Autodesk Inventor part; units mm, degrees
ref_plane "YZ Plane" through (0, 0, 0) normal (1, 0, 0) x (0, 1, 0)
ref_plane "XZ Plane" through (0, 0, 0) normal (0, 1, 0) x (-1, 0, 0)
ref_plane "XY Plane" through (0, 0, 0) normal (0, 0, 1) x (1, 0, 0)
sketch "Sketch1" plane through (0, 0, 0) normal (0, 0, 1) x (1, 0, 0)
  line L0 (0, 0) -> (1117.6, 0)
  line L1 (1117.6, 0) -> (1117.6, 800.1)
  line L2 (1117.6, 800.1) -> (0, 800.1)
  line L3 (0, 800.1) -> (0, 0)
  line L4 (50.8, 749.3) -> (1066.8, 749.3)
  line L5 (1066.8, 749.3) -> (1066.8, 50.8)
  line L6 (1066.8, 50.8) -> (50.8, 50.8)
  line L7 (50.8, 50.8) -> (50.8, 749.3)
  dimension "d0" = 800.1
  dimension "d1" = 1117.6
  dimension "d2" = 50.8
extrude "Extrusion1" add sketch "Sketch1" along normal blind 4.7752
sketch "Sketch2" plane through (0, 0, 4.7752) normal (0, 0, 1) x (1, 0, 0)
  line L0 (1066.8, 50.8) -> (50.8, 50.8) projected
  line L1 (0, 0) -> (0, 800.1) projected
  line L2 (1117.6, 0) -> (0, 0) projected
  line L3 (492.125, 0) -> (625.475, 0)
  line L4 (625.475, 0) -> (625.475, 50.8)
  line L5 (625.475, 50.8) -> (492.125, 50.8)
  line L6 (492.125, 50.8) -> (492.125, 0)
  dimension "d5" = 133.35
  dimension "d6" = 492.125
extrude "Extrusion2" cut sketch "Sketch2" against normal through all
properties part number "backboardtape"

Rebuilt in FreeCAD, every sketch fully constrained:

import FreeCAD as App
import Part
import Sketcher

V = App.Vector
Q = App.Units.Quantity

doc = App.newDocument("Part")
body = doc.addObject("PartDesign::Body", "Body")

# Sketch on XY plane
sketch1 = body.newObject("Sketcher::SketchObject", "Sketch")
sketch1.AttachmentSupport = (doc.getObject("XY_Plane"), [""])
sketch1.MapMode = "FlatFace"
sketch1.addGeometry([
    Part.LineSegment(V(0, 800, 0), V(0, 0, 0)),  # 0
    Part.LineSegment(V(0, 0, 0), V(1118, 0, 0)),  # 1
    Part.LineSegment(V(1118, 0, 0), V(1118, 800, 0)),  # 2
    Part.LineSegment(V(1118, 800, 0), V(0, 800, 0)),  # 3
    Part.LineSegment(V(51, 51, 0), V(51, 749, 0)),  # 4
    Part.LineSegment(V(51, 749, 0), V(1067, 749, 0)),  # 5
    Part.LineSegment(V(1067, 749, 0), V(1067, 51, 0)),  # 6
    Part.LineSegment(V(1067, 51, 0), V(51, 51, 0)),  # 7
], False)
sketch1.addConstraint([
    Sketcher.Constraint("Coincident", 0, 2, 1, 1),
    Sketcher.Constraint("Coincident", 1, 2, 2, 1),
    Sketcher.Constraint("Coincident", 2, 2, 3, 1),
    Sketcher.Constraint("Coincident", 3, 2, 0, 1),
    Sketcher.Constraint("Coincident", 4, 2, 5, 1),
    Sketcher.Constraint("Coincident", 5, 2, 6, 1),
    Sketcher.Constraint("Coincident", 6, 2, 7, 1),
    Sketcher.Constraint("Coincident", 7, 2, 4, 1),
    Sketcher.Constraint("Vertical", 0),
    Sketcher.Constraint("Horizontal", 1),
    Sketcher.Constraint("Vertical", 2),
    Sketcher.Constraint("Horizontal", 3),
    Sketcher.Constraint("Vertical", 4),
    Sketcher.Constraint("Horizontal", 5),
    Sketcher.Constraint("Vertical", 6),
    Sketcher.Constraint("Horizontal", 7),
    Sketcher.Constraint("Coincident", 0, 2, -1, 1),
    Sketcher.Constraint("DistanceX", 1, 1, 1, 2, Q("44 in")),
    Sketcher.Constraint("DistanceY", 0, 2, 0, 1, Q("31.5 in")),
    Sketcher.Constraint("DistanceX", -1, 1, 4, 2, Q("2 in")),
    Sketcher.Constraint("DistanceY", -1, 1, 6, 2, Q("2 in")),
    Sketcher.Constraint("DistanceY", 4, 2, 3, 2, Q("2 in")),
    Sketcher.Constraint("DistanceX", 5, 2, 2, 2, Q("2 in")),
])
pad1 = body.newObject("PartDesign::Pad", "Pad")
pad1.Profile = sketch1
pad1.Length = Q("0.188 in")

# Sketch on XY plane
sketch2 = body.newObject("Sketcher::SketchObject", "Sketch001")
sketch2.AttachmentSupport = (doc.getObject("XY_Plane"), [""])
sketch2.MapMode = "FlatFace"
sketch2.AttachmentOffset = App.Placement(V(0, 0, 0.188 * 25.4), App.Rotation())
sketch2.addGeometry([
    Part.LineSegment(V(625, 0, 0), V(625, 51, 0)),
    Part.LineSegment(V(625, 51, 0), V(492, 51, 0)),
    Part.LineSegment(V(492, 51, 0), V(492, 0, 0)),
    Part.LineSegment(V(492, 0, 0), V(625, 0, 0)),
], False)
sketch2.addConstraint([
    Sketcher.Constraint("Coincident", 0, 2, 1, 1),
    Sketcher.Constraint("Coincident", 1, 2, 2, 1),
    Sketcher.Constraint("Coincident", 2, 2, 3, 1),
    Sketcher.Constraint("Coincident", 3, 2, 0, 1),
    Sketcher.Constraint("Vertical", 0),
    Sketcher.Constraint("Horizontal", 1),
    Sketcher.Constraint("Vertical", 2),
    Sketcher.Constraint("Horizontal", 3),
    Sketcher.Constraint("PointOnObject", 2, 2, -1),
    Sketcher.Constraint("DistanceX", 1, 2, 1, 1, Q("5.25 in")),
    Sketcher.Constraint("DistanceY", 0, 1, 0, 2, Q("2 in")),
    Sketcher.Constraint("DistanceX", -1, 1, 1, 2, Q("19.375 in")),
])
pocket1 = body.newObject("PartDesign::Pocket", "Pocket")
pocket1.Profile = sketch2
pocket1.Type = "ThroughAll"

doc.recompute()
